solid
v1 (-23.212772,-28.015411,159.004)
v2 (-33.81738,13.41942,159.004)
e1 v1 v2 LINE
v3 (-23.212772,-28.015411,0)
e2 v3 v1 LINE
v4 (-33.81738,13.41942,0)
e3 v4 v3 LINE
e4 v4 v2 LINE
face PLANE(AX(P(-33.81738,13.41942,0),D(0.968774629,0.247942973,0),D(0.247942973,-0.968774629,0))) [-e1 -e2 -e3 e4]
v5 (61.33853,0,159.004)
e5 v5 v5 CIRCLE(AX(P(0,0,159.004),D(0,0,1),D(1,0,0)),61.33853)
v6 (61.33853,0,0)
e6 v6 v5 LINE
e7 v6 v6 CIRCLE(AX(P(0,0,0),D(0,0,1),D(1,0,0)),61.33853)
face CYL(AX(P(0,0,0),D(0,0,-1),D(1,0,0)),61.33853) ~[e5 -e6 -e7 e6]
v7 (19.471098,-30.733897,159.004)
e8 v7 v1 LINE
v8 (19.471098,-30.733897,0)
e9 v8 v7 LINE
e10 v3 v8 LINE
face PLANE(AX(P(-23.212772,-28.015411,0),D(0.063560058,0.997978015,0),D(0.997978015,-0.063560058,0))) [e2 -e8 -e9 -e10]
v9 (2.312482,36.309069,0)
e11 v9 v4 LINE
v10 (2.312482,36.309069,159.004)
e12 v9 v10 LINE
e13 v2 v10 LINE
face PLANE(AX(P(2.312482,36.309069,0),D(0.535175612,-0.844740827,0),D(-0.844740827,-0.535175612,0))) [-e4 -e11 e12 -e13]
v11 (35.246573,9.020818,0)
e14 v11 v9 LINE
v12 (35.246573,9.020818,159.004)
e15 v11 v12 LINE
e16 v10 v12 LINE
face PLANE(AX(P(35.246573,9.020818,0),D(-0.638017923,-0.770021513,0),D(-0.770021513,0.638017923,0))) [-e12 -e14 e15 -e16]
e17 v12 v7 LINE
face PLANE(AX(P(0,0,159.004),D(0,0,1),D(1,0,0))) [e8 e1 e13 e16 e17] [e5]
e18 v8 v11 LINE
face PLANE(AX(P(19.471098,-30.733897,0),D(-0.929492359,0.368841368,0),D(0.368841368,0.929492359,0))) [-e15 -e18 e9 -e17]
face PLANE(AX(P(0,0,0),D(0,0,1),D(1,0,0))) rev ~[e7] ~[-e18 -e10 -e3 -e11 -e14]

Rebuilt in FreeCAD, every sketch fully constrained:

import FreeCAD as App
import Part
import Sketcher
from FreeCAD import Vector
Q = App.Units.Quantity

doc = App.newDocument("Part")
body = doc.addObject("PartDesign::Body", "Body")

# Sketch on XY plane
sketch1 = body.newObject("Sketcher::SketchObject", "Sketch")
sketch1.AttachmentSupport = (doc.getObject("XY_Plane"), [""])
sketch1.MapMode = "FlatFace"
sketch1.addGeometry(Part.Circle(Vector(0, 0, 0), Vector(0, 0, 1), 61), False)
sketch1.addConstraint([
    Sketcher.Constraint("Coincident", 0, 3, -1, 1),
    Sketcher.Constraint("Diameter", 0, Q("122.67706 mm")),
])
pad1 = body.newObject("PartDesign::Pad", "Pad")
pad1.Profile = sketch1
pad1.Length = Q("6.26 in")

# Sketch on XY plane
sketch2 = body.newObject("Sketcher::SketchObject", "Sketch001")
sketch2.AttachmentSupport = (doc.getObject("XY_Plane"), [""])
sketch2.MapMode = "FlatFace"
sketch2.addGeometry([
    Part.LineSegment(Vector(35.246573, 9.020818, 0), Vector(2.312482, 36.309069, 0)),  # 0
    Part.LineSegment(Vector(2.312482, 36.309069, 0), Vector(-33.81738, 13.41942, 0)),  # 1
    Part.LineSegment(Vector(-33.81738, 13.41942, 0), Vector(-23.212772, -28.015411, 0)),  # 2
    Part.LineSegment(Vector(-23.212772, -28.015411, 0), Vector(19.471098, -30.733897, 0)),  # 3
    Part.LineSegment(Vector(19.471098, -30.733897, 0), Vector(35.246573, 9.020818, 0)),  # 4
], False)
sketch2.addConstraint([
    Sketcher.Constraint("Coincident", 0, 2, 1, 1),
    Sketcher.Constraint("Coincident", 1, 2, 2, 1),
    Sketcher.Constraint("Coincident", 2, 2, 3, 1),
    Sketcher.Constraint("Coincident", 3, 2, 4, 1),
    Sketcher.Constraint("Coincident", 4, 2, 0, 1),
    Sketcher.Constraint("DistanceX", -1, 1, 3, 2, Q("19.471098 mm")),
    Sketcher.Constraint("Distance", 0, Q("42.770352 mm")),
    Sketcher.Constraint("Distance", 1, Q("42.770351 mm")),
    Sketcher.Constraint("Distance", 2, Q("42.770351 mm")),
    Sketcher.Constraint("Distance", 3, Q("42.770351 mm")),
    Sketcher.Constraint("Distance", 4, Q("42.770352 mm")),
    Sketcher.Constraint("DistanceY", -1, 1, 0, 2, Q("36.309069 mm")),
    Sketcher.Constraint("DistanceX", 1, 2, -1, 1, Q("33.81738 mm")),
    Sketcher.Constraint("DistanceY", -1, 1, 1, 2, Q("13.41942 mm")),
    Sketcher.Constraint("DistanceY", 2, 2, -1, 1, Q("28.015411 mm")),
])
pocket1 = body.newObject("PartDesign::Pocket", "Pocket")
pocket1.Profile = sketch2
pocket1.Type = "ThroughAll"
pocket1.Reversed = True

doc.recompute()
